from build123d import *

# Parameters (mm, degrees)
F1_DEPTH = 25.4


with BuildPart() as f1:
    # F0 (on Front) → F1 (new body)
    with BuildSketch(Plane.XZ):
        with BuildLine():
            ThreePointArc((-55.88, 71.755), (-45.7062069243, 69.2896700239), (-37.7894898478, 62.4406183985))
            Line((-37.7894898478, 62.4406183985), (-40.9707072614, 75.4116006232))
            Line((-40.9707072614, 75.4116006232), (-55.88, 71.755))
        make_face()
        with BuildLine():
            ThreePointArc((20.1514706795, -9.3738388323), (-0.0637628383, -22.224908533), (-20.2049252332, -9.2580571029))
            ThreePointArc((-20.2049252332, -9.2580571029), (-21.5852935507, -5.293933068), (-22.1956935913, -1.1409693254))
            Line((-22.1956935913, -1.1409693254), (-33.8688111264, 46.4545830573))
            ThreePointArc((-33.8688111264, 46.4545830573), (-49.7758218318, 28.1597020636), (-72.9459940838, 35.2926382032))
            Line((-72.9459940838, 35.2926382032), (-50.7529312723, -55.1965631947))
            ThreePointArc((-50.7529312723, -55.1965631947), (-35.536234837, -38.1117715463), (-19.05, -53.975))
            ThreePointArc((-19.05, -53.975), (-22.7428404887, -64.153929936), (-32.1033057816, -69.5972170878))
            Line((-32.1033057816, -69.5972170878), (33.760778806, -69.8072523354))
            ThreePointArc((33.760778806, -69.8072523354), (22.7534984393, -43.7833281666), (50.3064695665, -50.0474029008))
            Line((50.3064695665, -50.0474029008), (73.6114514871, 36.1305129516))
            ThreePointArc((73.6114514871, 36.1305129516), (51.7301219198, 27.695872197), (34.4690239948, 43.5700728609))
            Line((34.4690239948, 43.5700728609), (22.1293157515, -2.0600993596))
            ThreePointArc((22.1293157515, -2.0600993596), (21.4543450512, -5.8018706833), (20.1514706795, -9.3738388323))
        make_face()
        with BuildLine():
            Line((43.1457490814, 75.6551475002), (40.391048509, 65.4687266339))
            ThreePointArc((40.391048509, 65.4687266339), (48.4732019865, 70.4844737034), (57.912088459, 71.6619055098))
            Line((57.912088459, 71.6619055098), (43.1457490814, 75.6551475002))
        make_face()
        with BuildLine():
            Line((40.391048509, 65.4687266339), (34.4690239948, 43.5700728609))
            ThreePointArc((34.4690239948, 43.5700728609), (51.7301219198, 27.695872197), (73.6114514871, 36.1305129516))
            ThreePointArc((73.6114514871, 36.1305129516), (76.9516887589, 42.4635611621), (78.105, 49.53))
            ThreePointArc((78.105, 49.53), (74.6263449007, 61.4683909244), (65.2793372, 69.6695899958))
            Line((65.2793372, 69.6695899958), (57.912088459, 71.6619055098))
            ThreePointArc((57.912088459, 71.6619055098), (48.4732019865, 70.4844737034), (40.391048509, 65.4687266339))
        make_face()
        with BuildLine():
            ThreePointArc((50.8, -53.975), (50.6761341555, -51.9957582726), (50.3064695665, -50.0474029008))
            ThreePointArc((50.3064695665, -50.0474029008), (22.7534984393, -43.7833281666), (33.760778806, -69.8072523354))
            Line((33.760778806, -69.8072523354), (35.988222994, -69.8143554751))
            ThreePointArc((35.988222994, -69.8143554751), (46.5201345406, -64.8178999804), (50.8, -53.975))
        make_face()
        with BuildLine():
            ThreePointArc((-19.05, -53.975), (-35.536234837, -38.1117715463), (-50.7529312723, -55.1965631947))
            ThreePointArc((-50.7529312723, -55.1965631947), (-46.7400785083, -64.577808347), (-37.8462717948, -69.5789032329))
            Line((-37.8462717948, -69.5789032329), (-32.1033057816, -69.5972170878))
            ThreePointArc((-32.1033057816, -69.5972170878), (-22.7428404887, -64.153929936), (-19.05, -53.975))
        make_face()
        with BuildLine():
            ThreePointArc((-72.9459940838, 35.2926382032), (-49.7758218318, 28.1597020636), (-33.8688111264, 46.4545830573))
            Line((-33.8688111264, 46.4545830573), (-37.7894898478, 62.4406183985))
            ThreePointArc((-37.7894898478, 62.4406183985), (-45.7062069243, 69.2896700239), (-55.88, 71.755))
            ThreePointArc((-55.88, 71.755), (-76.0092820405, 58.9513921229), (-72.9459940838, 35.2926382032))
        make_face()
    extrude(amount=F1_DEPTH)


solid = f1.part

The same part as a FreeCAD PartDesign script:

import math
import FreeCAD as App
import Part
import Sketcher

V = App.Vector
Q = App.Units.Quantity

doc = App.newDocument("Part")
body = doc.addObject("PartDesign::Body", "Body")

# Sketch on XZ plane
sketch1 = body.newObject("Sketcher::SketchObject", "Sketch")
sketch1.AttachmentSupport = (doc.getObject("XZ_Plane"), [""])
sketch1.MapMode = "FlatFace"
sketch1.addGeometry([
    Part.LineSegment(V(-37.78949, 62.440618, 0), V(-40.970707, 75.411601, 0)),  # 0
    Part.LineSegment(V(-40.970707, 75.411601, 0), V(-55.88, 71.755, 0)),  # 1
    Part.ArcOfCircle(Part.Circle(V(-55.88, 49.53, 0), V(0, 0, 1), 22.225), math.radians(90), math.radians(219.836665)),  # 2
    Part.LineSegment(V(-72.945994, 35.292638, 0), V(-50.752931, -55.196563, 0)),  # 3
    Part.ArcOfCircle(Part.Circle(V(-34.925, -53.975, 0), V(0, 0, 1), 15.875), math.radians(-175.586792), math.radians(-100.603834)),  # 4
    Part.LineSegment(V(-37.846272, -69.578903, 0), V(33.760779, -69.807252, 0)),  # 5
    Part.LineSegment(V(33.760779, -69.807252, 0), V(35.988223, -69.814355, 0)),  # 6
    Part.ArcOfCircle(Part.Circle(V(34.925, -53.975, 0), V(0, 0, 1), 15.875), math.radians(-86.159759), math.radians(0)),  # 7
    Part.ArcOfCircle(Part.Circle(V(34.925, -53.975, 0), V(0, 0, 1), 15.875), math.radians(0), math.radians(14.324166)),  # 8
    Part.LineSegment(V(50.30647, -50.047403, 0), V(73.611451, 36.130513, 0)),  # 9
    Part.ArcOfCircle(Part.Circle(V(55.88, 49.53, 0), V(0, 0, 1), 22.225), math.radians(-37.07799), math.radians(0)),  # 10
    Part.ArcOfCircle(Part.Circle(V(55.88, 49.53, 0), V(0, 0, 1), 22.225), math.radians(0), math.radians(64.981093)),  # 11
    Part.LineSegment(V(65.279337, 69.66959, 0), V(57.912088, 71.661906, 0)),  # 12
    Part.LineSegment(V(57.912088, 71.661906, 0), V(43.145749, 75.655147, 0)),  # 13
    Part.LineSegment(V(43.145749, 75.655147, 0), V(40.391049, 65.468727, 0)),  # 14
    Part.LineSegment(V(40.391049, 65.468727, 0), V(34.469024, 43.570073, 0)),  # 15
    Part.LineSegment(V(34.469024, 43.570073, 0), V(22.129316, -2.060099, 0)),  # 16
    Part.ArcOfCircle(Part.Circle(V(0, 0, 0), V(0, 0, 1), 22.225), math.radians(-24.946387), math.radians(-5.318546)),  # 17
    Part.ArcOfCircle(Part.Circle(V(0, 0, 0), V(0, 0, 1), 22.225), math.radians(-155.382373), math.radians(-24.946387)),  # 18
    Part.ArcOfCircle(Part.Circle(V(0, 0, 0), V(0, 0, 1), 22.225), math.radians(-177.057301), math.radians(-155.382373)),  # 19
    Part.LineSegment(V(-22.195694, -1.140969, 0), V(-33.868811, 46.454583, 0)),  # 20
    Part.LineSegment(V(-33.868811, 46.454583, 0), V(-37.78949, 62.440618, 0)),  # 21
], False)
sketch1.addConstraint([
    Sketcher.Constraint("Coincident", 0, 2, 1, 1),
    Sketcher.Constraint("Coincident", 1, 2, 2, 1),
    Sketcher.Constraint("Coincident", 2, 2, 3, 1),
    Sketcher.Constraint("Coincident", 3, 2, 4, 1),
    Sketcher.Constraint("Coincident", 4, 2, 5, 1),
    Sketcher.Constraint("Coincident", 5, 2, 6, 1),
    Sketcher.Constraint("Coincident", 6, 2, 7, 1),
    Sketcher.Constraint("Coincident", 7, 2, 8, 1),
    Sketcher.Constraint("Coincident", 8, 2, 9, 1),
    Sketcher.Constraint("Coincident", 9, 2, 10, 1),
    Sketcher.Constraint("Coincident", 10, 2, 11, 1),
    Sketcher.Constraint("Coincident", 11, 2, 12, 1),
    Sketcher.Constraint("Coincident", 12, 2, 13, 1),
    Sketcher.Constraint("Coincident", 13, 2, 14, 1),
    Sketcher.Constraint("Coincident", 14, 2, 15, 1),
    Sketcher.Constraint("Coincident", 15, 2, 16, 1),
    Sketcher.Constraint("Coincident", 16, 2, 17, 2),
    Sketcher.Constraint("Coincident", 17, 1, 18, 2),
    Sketcher.Constraint("Coincident", 18, 1, 19, 2),
    Sketcher.Constraint("Coincident", 19, 1, 20, 1),
    Sketcher.Constraint("Coincident", 20, 2, 21, 1),
    Sketcher.Constraint("Coincident", 21, 2, 0, 1),
    Sketcher.Constraint("Coincident", 17, 3, -1, 1),
    Sketcher.Constraint("Coincident", 18, 3, -1, 1),
    Sketcher.Constraint("Coincident", 19, 3, -1, 1),
    Sketcher.Constraint("Coincident", 8, 3, 7, 3),
    Sketcher.Constraint("Coincident", 11, 3, 10, 3),
    Sketcher.Constraint("DistanceX", -1, 1, 7, 2, Q("2 in")),
    Sketcher.Constraint("Radius", 2, Q("0.875 in")),
    Sketcher.Constraint("Radius", 4, Q("0.625 in")),
    Sketcher.Constraint("Radius", 7, Q("0.625 in")),
    Sketcher.Constraint("Radius", 10, Q("0.875 in")),
    Sketcher.Constraint("Radius", 17, Q("0.875 in")),
    Sketcher.Constraint("DistanceX", 2, 3, -1, 1, Q("2.2 in")),
    Sketcher.Constraint("DistanceX", -1, 1, 10, 3, Q("2.2 in")),
    Sketcher.Constraint("DistanceX", 1, 2, -1, 1, Q("2.2 in")),
    Sketcher.Constraint("DistanceY", -1, 1, 2, 3, Q("1.95 in")),
    Sketcher.Constraint("DistanceY", -1, 1, 10, 3, Q("1.95 in")),
    Sketcher.Constraint("DistanceY", -1, 1, 10, 2, Q("1.95 in")),
    Sketcher.Constraint("DistanceX", 4, 3, 7, 3, Q("2.75 in")),
    Sketcher.Constraint("DistanceY", 4, 3, -1, 1, Q("2.125 in")),
    Sketcher.Constraint("DistanceY", 7, 3, -1, 1, Q("2.125 in")),
    Sketcher.Constraint("DistanceY", 7, 2, -1, 1, Q("2.125 in")),
    Sketcher.Constraint("Distance", 21, Q("16.459801 mm")),
    Sketcher.Constraint("DistanceY", -1, 1, 0, 2, Q("75.411601 mm")),
    Sketcher.Constraint("DistanceY", 16, 2, -1, 1, Q("2.060099 mm")),
    Sketcher.Constraint("DistanceX", 14, 2, 13, 2, Q("2.754701 mm")),
    Sketcher.Constraint("Distance", 3, Q("93.170959 mm")),
    Sketcher.Constraint("Distance", 15, Q("22.685269 mm")),
    Sketcher.Constraint("Distance", 16, Q("47.26924 mm")),
    Sketcher.Constraint("DistanceY", -1, 1, 2, 2, Q("35.292638 mm")),
    Sketcher.Constraint("DistanceX", 4, 2, -1, 1, Q("37.846272 mm")),
    Sketcher.Constraint("DistanceX", -1, 1, 5, 2, Q("33.760779 mm")),
    Sketcher.Constraint("DistanceX", -1, 1, 8, 2, Q("50.30647 mm")),
    Sketcher.Constraint("DistanceX", -1, 1, 9, 2, Q("73.611451 mm")),
    Sketcher.Constraint("DistanceY", -1, 1, 11, 2, Q("69.66959 mm")),
    Sketcher.Constraint("DistanceX", -1, 1, 12, 2, Q("57.912088 mm")),
    Sketcher.Constraint("DistanceX", -1, 1, 13, 2, Q("43.145749 mm")),
    Sketcher.Constraint("DistanceX", -1, 1, 17, 1, Q("20.151471 mm")),
    Sketcher.Constraint("DistanceY", 19, 1, -1, 1, Q("1.140969 mm")),
    Sketcher.Constraint("DistanceX", 20, 2, -1, 1, Q("33.868811 mm")),
    Sketcher.Constraint("DistanceX", 21, 2, -1, 1, Q("37.78949 mm")),
    Sketcher.Constraint("DistanceY", -1, 1, 21, 2, Q("62.440618 mm")),
    Sketcher.Constraint("DistanceY", 5, 2, 4, 2, Q("0.228349 mm")),
    Sketcher.Constraint("DistanceY", 12, 2, 13, 2, Q("3.993242 mm")),
    Sketcher.Constraint("DistanceY", 14, 2, 13, 2, Q("10.186421 mm")),
    Sketcher.Constraint("DistanceX", 16, 2, 15, 2, Q("12.339708 mm")),
    Sketcher.Constraint("DistanceY", 17, 1, 18, 1, Q("0.115782 mm")),
    Sketcher.Constraint("Distance", 0, Q("13.355393 mm")),
    Sketcher.Constraint("Distance", 6, Q("2.227456 mm")),
])
pad1 = body.newObject("PartDesign::Pad", "Pad")
pad1.Profile = sketch1
pad1.Length = Q("1 in")

doc.recompute()
